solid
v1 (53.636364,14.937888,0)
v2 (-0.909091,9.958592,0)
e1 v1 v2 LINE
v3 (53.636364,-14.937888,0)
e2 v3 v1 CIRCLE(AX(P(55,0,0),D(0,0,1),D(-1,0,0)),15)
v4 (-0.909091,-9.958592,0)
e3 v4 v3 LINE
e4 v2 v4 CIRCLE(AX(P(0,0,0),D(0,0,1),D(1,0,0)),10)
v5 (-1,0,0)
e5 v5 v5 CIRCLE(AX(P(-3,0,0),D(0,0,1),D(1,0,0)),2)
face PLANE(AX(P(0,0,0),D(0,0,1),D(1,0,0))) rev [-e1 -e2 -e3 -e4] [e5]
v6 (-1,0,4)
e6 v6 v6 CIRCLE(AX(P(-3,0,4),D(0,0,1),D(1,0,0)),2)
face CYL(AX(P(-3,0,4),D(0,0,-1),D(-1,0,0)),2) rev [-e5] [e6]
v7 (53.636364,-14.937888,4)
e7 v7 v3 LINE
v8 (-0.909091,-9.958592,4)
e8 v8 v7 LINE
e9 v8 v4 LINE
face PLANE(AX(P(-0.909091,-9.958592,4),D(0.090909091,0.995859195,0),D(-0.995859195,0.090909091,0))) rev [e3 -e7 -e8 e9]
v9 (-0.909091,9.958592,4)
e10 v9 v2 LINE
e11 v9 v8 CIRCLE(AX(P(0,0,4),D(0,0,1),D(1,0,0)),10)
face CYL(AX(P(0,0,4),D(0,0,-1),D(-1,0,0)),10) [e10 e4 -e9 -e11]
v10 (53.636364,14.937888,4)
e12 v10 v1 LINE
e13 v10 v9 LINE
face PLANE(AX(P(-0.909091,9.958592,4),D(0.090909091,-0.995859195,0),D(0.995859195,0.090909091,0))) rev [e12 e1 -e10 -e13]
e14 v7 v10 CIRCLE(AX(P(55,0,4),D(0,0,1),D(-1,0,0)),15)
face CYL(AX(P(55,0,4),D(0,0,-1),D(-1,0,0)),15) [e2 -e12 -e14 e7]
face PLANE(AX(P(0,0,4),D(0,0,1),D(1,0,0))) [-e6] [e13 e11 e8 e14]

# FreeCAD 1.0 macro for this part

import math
import FreeCAD as App
import Part
import Sketcher

V = App.Vector
Q = App.Units.Quantity

doc = App.newDocument("Part")
params = doc.addObject("Spreadsheet::Sheet", "Params")
for row, (alias, value) in enumerate([
    ("sketch1_diameter", "4 mm"),
    ("sketch1_radius", "10 mm"),
    ("sketch1_radius2", "15 mm"),
    ("pad1_length", "4 mm"),
], start=1):
    params.set(f"A{row}", alias)
    params.set(f"B{row}", "=" + value)
    params.setAlias(f"B{row}", alias)

body = doc.addObject("PartDesign::Body", "Body")

sketch1 = doc.addObject("Sketcher::SketchObject", "Sketch")
body.addObject(sketch1)
sketch1.AttachmentSupport = (doc.XY_Plane, [""])
sketch1.MapMode = "FlatFace"
sketch1.addGeometry(Part.LineSegment(V(53.636364, 14.937888, 0), V(-0.909091, 9.958592, 0)), False)
sketch1.addGeometry(Part.ArcOfCircle(Part.Circle(V(0, 0, 0), V(0, 0, 1), 10), math.radians(95.215909), math.radians(264.784091)), False)
sketch1.addGeometry(Part.LineSegment(V(-0.909091, -9.958592, 0), V(53.636364, -14.937888, 0)), False)
sketch1.addGeometry(Part.ArcOfCircle(Part.Circle(V(55, 0, 0), V(0, 0, 1), 15), math.radians(-95.215909), math.radians(95.215909)), False)
sketch1.addGeometry(Part.Circle(V(-3, 0, 0), V(0, 0, 1), 2), False)
sketch1.addConstraint(Sketcher.Constraint("Tangent", 0, 2, 1, 1))
sketch1.addConstraint(Sketcher.Constraint("Tangent", 1, 2, 2, 1))
sketch1.addConstraint(Sketcher.Constraint("Tangent", 2, 2, 3, 1))
sketch1.addConstraint(Sketcher.Constraint("Tangent", 3, 2, 0, 1))
sketch1.addConstraint(Sketcher.Constraint("Coincident", 1, 3, -1, 1))
sketch1.addConstraint(Sketcher.Constraint("PointOnObject", 3, 3, -1))
sketch1.addConstraint(Sketcher.Constraint("PointOnObject", 4, 3, -1))
sketch1.addConstraint(Sketcher.Constraint("Diameter", 4, Q("4 mm")))
sketch1.addConstraint(Sketcher.Constraint("Radius", 1, Q("10 mm")))
sketch1.addConstraint(Sketcher.Constraint("Radius", 3, Q("15 mm")))
sketch1.addConstraint(Sketcher.Constraint("DistanceX", -1, 1, 3, 3, Q("55 mm")))
sketch1.addConstraint(Sketcher.Constraint("DistanceX", 4, 3, -1, 1, Q("3 mm")))
sketch1.setExpression("Constraints[7]", "Params.sketch1_diameter")
sketch1.setExpression("Constraints[8]", "Params.sketch1_radius")
sketch1.setExpression("Constraints[9]", "Params.sketch1_radius2")
pad1 = doc.addObject("PartDesign::Pad", "Pad")
body.addObject(pad1)
pad1.Profile = sketch1
pad1.setExpression("Length", "Params.pad1_length")

doc.recompute()
